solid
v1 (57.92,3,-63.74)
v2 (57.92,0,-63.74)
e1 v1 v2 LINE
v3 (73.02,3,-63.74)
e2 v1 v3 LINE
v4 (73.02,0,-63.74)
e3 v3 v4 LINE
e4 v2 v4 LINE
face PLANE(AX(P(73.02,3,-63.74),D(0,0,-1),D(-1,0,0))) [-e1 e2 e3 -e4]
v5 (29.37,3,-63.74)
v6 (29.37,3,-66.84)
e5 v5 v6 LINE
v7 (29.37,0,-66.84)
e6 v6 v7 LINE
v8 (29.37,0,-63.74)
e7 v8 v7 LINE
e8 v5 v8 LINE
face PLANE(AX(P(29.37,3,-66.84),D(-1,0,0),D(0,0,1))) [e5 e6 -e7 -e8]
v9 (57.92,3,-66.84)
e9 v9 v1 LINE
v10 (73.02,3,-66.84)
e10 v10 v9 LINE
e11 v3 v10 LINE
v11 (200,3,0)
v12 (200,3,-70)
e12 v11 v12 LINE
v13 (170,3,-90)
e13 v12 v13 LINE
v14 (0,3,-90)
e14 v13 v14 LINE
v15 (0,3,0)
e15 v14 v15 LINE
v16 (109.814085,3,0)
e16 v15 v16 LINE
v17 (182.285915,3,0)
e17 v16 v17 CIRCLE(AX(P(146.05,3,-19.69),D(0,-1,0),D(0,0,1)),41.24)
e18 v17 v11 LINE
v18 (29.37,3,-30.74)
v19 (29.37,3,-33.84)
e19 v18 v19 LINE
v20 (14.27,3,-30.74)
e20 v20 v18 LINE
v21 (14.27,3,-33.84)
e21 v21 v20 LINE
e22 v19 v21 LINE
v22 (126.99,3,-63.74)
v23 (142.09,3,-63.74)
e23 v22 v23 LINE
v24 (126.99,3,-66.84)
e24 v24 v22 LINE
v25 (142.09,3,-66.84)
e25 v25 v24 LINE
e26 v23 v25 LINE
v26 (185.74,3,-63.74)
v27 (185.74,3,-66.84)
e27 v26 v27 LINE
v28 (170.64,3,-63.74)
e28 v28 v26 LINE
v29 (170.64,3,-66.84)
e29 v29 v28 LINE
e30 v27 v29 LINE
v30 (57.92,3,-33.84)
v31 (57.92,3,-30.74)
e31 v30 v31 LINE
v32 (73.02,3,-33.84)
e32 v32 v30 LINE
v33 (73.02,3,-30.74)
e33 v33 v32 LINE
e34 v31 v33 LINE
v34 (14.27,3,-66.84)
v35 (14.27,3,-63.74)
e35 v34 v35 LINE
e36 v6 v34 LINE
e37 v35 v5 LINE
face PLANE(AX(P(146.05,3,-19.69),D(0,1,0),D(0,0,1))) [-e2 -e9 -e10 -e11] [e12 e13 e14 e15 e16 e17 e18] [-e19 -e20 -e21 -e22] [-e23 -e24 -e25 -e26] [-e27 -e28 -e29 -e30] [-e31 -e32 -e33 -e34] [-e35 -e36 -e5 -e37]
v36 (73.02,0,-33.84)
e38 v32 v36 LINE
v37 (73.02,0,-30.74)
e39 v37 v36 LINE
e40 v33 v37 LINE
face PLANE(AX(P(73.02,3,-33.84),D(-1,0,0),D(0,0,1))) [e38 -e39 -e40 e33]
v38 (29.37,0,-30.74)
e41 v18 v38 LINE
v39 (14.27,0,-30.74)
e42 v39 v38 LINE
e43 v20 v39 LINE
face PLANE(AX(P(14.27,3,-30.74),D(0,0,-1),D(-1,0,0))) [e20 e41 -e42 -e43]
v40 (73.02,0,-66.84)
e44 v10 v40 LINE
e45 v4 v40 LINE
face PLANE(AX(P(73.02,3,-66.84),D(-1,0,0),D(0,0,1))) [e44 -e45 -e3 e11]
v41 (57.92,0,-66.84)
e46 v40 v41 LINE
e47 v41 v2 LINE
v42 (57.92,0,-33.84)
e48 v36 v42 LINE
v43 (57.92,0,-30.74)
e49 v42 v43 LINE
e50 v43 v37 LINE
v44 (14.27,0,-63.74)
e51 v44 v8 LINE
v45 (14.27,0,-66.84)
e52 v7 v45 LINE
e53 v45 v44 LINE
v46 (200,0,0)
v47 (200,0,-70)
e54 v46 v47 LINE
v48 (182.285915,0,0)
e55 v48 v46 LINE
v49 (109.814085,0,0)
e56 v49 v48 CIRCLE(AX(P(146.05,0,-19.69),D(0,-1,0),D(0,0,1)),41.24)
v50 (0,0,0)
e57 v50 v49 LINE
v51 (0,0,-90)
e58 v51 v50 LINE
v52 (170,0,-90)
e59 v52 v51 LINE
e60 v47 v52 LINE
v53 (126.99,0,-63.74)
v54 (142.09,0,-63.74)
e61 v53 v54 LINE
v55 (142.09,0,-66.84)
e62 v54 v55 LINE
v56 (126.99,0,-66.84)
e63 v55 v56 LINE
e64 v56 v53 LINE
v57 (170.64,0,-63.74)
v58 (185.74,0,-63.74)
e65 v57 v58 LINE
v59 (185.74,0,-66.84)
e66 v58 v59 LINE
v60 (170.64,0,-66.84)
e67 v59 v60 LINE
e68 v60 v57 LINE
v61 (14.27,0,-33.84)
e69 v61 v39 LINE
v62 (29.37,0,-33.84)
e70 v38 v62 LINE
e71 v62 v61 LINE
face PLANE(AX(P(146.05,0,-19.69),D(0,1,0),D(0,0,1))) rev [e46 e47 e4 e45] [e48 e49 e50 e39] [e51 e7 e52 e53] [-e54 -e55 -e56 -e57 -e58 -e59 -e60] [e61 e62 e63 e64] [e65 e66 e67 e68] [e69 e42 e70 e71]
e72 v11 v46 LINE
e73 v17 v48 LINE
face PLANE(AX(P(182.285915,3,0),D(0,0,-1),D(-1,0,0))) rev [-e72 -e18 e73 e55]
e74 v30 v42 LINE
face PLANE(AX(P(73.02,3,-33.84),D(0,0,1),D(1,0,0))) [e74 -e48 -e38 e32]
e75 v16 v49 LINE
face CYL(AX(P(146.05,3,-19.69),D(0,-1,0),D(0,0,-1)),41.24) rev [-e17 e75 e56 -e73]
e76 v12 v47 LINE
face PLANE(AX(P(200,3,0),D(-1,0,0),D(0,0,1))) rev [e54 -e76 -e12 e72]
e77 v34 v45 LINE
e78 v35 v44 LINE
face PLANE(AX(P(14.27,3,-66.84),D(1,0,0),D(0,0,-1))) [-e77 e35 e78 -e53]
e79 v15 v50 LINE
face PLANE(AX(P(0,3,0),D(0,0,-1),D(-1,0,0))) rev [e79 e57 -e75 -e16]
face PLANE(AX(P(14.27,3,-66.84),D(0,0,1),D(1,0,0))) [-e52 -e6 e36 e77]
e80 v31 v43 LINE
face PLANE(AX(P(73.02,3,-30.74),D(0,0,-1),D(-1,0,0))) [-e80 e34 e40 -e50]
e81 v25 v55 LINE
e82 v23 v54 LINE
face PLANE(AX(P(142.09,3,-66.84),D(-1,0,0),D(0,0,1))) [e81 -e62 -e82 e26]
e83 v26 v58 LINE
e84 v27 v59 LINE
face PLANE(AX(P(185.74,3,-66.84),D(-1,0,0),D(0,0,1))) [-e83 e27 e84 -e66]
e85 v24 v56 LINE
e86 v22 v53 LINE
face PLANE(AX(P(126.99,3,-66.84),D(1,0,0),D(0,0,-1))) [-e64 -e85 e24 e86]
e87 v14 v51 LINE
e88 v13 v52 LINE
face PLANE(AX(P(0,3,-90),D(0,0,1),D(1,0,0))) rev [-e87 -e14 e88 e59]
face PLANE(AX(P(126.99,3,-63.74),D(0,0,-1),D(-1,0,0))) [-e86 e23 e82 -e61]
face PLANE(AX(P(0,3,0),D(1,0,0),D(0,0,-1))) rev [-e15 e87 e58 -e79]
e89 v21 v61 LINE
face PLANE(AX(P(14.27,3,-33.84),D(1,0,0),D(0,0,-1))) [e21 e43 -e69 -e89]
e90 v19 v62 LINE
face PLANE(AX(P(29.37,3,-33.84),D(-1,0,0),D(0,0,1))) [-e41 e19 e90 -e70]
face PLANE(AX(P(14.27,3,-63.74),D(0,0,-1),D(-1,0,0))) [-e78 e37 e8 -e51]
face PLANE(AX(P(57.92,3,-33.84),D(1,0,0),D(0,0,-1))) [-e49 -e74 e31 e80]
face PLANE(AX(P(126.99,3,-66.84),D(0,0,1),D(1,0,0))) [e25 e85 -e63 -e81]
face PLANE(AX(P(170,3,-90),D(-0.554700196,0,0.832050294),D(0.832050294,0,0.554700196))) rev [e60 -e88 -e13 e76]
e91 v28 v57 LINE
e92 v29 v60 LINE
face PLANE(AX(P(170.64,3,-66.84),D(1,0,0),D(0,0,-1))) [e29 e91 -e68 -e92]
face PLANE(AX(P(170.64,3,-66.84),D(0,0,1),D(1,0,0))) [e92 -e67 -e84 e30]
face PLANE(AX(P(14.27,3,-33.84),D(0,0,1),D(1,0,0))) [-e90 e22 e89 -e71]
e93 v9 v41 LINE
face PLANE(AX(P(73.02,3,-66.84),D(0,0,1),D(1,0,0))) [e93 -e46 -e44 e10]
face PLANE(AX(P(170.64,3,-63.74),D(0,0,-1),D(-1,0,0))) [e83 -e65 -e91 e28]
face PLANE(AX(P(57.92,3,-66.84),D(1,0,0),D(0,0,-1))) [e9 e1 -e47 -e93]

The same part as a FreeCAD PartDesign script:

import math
import FreeCAD as App
import Part
import Sketcher

V = App.Vector
Q = App.Units.Quantity


def add_polygon(sketch, points):
    """Adds a closed chain of lines whose ends are joined by coincident constraints."""
    first, n = sketch.GeometryCount, len(points)
    for a, b in zip(points, points[1:] + points[:1]):
        sketch.addGeometry(Part.LineSegment(App.Vector(*a, 0), App.Vector(*b, 0)), False)
    for i in range(n):
        sketch.addConstraint(Sketcher.Constraint("Coincident", first + i, 2, first + (i + 1) % n, 1))

doc = App.newDocument("Part")
body = doc.addObject("PartDesign::Body", "Body")

# Sketch on XZ plane
sketch1 = body.newObject("Sketcher::SketchObject", "Sketch")
sketch1.AttachmentSupport = (doc.getObject("XZ_Plane"), [""])
sketch1.MapMode = "FlatFace"
sketch1.addGeometry(Part.LineSegment(V(0, 0, 0), V(109.814085, 0, 0)), False)  # 0
sketch1.addGeometry(Part.ArcOfCircle(Part.Circle(V(146.05, -19.69, 0), V(0, 0, 1), 41.24), math.radians(151.481071), math.radians(388.518929)), False)  # 1
sketch1.addGeometry(Part.LineSegment(V(182.285915, 0, 0), V(200, 0, 0)), False)  # 2
sketch1.addGeometry(Part.LineSegment(V(200, 0, 0), V(200, -70, 0)), False)  # 3
sketch1.addGeometry(Part.LineSegment(V(200, -70, 0), V(170, -90, 0)), False)  # 4
sketch1.addGeometry(Part.LineSegment(V(170, -90, 0), V(0, -90, 0)), False)  # 5
sketch1.addGeometry(Part.LineSegment(V(0, -90, 0), V(0, 0, 0)), False)  # 6
add_polygon(sketch1, [(29.37, -30.74), (14.27, -30.74), (14.27, -33.84), (29.37, -33.84)])  # lines 7-10
add_polygon(sketch1, [(73.02, -30.74), (57.92, -30.74), (57.92, -33.84), (73.02, -33.84)])  # lines 11-14
add_polygon(sketch1, [(29.37, -63.74), (14.27, -63.74), (14.27, -66.84), (29.37, -66.84)])  # lines 15-18
add_polygon(sketch1, [(73.02, -63.74), (57.92, -63.74), (57.92, -66.84), (73.02, -66.84)])  # lines 19-22
add_polygon(sketch1, [(142.09, -63.74), (126.99, -63.74), (126.99, -66.84), (142.09, -66.84)])  # lines 23-26
add_polygon(sketch1, [(185.74, -63.74), (170.64, -63.74), (170.64, -66.84), (185.74, -66.84)])  # lines 27-30
sketch1.addConstraint([
    Sketcher.Constraint("Coincident", 0, 2, 1, 1),
    Sketcher.Constraint("Coincident", 1, 2, 2, 1),
    Sketcher.Constraint("Coincident", 2, 2, 3, 1),
    Sketcher.Constraint("Coincident", 3, 2, 4, 1),
    Sketcher.Constraint("Coincident", 4, 2, 5, 1),
    Sketcher.Constraint("Coincident", 5, 2, 6, 1),
    Sketcher.Constraint("Coincident", 6, 2, 0, 1),
    Sketcher.Constraint("Horizontal", 0),
    Sketcher.Constraint("Horizontal", 2),
    Sketcher.Constraint("Vertical", 3),
    Sketcher.Constraint("Horizontal", 5),
    Sketcher.Constraint("Vertical", 6),
    Sketcher.Constraint("Horizontal", 7),
    Sketcher.Constraint("Vertical", 8),
    Sketcher.Constraint("Horizontal", 9),
    Sketcher.Constraint("Vertical", 10),
    Sketcher.Constraint("Horizontal", 11),
    Sketcher.Constraint("Vertical", 12),
    Sketcher.Constraint("Horizontal", 13),
    Sketcher.Constraint("Vertical", 14),
    Sketcher.Constraint("Horizontal", 15),
    Sketcher.Constraint("Vertical", 16),
    Sketcher.Constraint("Horizontal", 17),
    Sketcher.Constraint("Vertical", 18),
    Sketcher.Constraint("Horizontal", 19),
    Sketcher.Constraint("Vertical", 20),
    Sketcher.Constraint("Horizontal", 21),
    Sketcher.Constraint("Vertical", 22),
    Sketcher.Constraint("Horizontal", 23),
    Sketcher.Constraint("Vertical", 24),
    Sketcher.Constraint("Horizontal", 25),
    Sketcher.Constraint("Vertical", 26),
    Sketcher.Constraint("Horizontal", 27),
    Sketcher.Constraint("Vertical", 28),
    Sketcher.Constraint("Horizontal", 29),
    Sketcher.Constraint("Vertical", 30),
    Sketcher.Constraint("Coincident", 6, 2, -1, 1),
    Sketcher.Constraint("PointOnObject", 1, 2, -1),
    Sketcher.Constraint("Horizontal", 10, 2, 11, 2),
    Sketcher.Constraint("Horizontal", 9, 2, 12, 2),
    Sketcher.Constraint("Horizontal", 18, 2, 19, 2),
    Sketcher.Constraint("Horizontal", 17, 2, 20, 2),
    Sketcher.Constraint("Horizontal", 22, 2, 23, 2),
    Sketcher.Constraint("Horizontal", 21, 2, 24, 2),
    Sketcher.Constraint("Horizontal", 26, 2, 27, 2),
    Sketcher.Constraint("Horizontal", 25, 2, 28, 2),
    Sketcher.Constraint("Vertical", 8, 2, 15, 2),
    Sketcher.Constraint("Vertical", 10, 2, 17, 2),
    Sketcher.Constraint("Vertical", 12, 2, 19, 2),
    Sketcher.Constraint("Vertical", 14, 2, 21, 2),
    Sketcher.Constraint("Equal", 9, 11),
    Sketcher.Constraint("Equal", 21, 23),
    Sketcher.Constraint("Equal", 25, 27),
    Sketcher.Constraint("Equal", 14, 16),
    Sketcher.Constraint("DistanceX", 5, 2, 5, 1, Q("170 mm")),
    Sketcher.Constraint("DistanceY", 3, 2, 3, 1, Q("70 mm")),
    Sketcher.Constraint("DistanceY", 6, 1, 6, 2, Q("90 mm")),
    Sketcher.Constraint("Radius", 1, Q("41.24 mm")),
    Sketcher.Constraint("DistanceX", 7, 2, 7, 1, Q("15.1 mm")),
    Sketcher.Constraint("DistanceY", 8, 2, 8, 1, Q("3.1 mm")),
    Sketcher.Constraint("DistanceX", -1, 1, 2, 2, Q("200 mm")),
    Sketcher.Constraint("DistanceY", 15, 2, 7, 2, Q("33 mm")),
    Sketcher.Constraint("DistanceX", -1, 1, 1, 3, Q("146.05 mm")),
    Sketcher.Constraint("DistanceY", 1, 3, -1, 1, Q("19.69 mm")),
    Sketcher.Constraint("DistanceX", -1, 1, 7, 2, Q("14.27 mm")),
    Sketcher.Constraint("DistanceY", 7, 2, -1, 1, Q("30.74 mm")),
    Sketcher.Constraint("DistanceX", -1, 1, 11, 2, Q("57.92 mm")),
    Sketcher.Constraint("DistanceX", -1, 1, 23, 2, Q("126.99 mm")),
    Sketcher.Constraint("DistanceX", -1, 1, 27, 2, Q("170.64 mm")),
])
pad1 = body.newObject("PartDesign::Pad", "Pad")
pad1.Profile = sketch1
pad1.Length = 3
pad1.Reversed = True

doc.recompute()
